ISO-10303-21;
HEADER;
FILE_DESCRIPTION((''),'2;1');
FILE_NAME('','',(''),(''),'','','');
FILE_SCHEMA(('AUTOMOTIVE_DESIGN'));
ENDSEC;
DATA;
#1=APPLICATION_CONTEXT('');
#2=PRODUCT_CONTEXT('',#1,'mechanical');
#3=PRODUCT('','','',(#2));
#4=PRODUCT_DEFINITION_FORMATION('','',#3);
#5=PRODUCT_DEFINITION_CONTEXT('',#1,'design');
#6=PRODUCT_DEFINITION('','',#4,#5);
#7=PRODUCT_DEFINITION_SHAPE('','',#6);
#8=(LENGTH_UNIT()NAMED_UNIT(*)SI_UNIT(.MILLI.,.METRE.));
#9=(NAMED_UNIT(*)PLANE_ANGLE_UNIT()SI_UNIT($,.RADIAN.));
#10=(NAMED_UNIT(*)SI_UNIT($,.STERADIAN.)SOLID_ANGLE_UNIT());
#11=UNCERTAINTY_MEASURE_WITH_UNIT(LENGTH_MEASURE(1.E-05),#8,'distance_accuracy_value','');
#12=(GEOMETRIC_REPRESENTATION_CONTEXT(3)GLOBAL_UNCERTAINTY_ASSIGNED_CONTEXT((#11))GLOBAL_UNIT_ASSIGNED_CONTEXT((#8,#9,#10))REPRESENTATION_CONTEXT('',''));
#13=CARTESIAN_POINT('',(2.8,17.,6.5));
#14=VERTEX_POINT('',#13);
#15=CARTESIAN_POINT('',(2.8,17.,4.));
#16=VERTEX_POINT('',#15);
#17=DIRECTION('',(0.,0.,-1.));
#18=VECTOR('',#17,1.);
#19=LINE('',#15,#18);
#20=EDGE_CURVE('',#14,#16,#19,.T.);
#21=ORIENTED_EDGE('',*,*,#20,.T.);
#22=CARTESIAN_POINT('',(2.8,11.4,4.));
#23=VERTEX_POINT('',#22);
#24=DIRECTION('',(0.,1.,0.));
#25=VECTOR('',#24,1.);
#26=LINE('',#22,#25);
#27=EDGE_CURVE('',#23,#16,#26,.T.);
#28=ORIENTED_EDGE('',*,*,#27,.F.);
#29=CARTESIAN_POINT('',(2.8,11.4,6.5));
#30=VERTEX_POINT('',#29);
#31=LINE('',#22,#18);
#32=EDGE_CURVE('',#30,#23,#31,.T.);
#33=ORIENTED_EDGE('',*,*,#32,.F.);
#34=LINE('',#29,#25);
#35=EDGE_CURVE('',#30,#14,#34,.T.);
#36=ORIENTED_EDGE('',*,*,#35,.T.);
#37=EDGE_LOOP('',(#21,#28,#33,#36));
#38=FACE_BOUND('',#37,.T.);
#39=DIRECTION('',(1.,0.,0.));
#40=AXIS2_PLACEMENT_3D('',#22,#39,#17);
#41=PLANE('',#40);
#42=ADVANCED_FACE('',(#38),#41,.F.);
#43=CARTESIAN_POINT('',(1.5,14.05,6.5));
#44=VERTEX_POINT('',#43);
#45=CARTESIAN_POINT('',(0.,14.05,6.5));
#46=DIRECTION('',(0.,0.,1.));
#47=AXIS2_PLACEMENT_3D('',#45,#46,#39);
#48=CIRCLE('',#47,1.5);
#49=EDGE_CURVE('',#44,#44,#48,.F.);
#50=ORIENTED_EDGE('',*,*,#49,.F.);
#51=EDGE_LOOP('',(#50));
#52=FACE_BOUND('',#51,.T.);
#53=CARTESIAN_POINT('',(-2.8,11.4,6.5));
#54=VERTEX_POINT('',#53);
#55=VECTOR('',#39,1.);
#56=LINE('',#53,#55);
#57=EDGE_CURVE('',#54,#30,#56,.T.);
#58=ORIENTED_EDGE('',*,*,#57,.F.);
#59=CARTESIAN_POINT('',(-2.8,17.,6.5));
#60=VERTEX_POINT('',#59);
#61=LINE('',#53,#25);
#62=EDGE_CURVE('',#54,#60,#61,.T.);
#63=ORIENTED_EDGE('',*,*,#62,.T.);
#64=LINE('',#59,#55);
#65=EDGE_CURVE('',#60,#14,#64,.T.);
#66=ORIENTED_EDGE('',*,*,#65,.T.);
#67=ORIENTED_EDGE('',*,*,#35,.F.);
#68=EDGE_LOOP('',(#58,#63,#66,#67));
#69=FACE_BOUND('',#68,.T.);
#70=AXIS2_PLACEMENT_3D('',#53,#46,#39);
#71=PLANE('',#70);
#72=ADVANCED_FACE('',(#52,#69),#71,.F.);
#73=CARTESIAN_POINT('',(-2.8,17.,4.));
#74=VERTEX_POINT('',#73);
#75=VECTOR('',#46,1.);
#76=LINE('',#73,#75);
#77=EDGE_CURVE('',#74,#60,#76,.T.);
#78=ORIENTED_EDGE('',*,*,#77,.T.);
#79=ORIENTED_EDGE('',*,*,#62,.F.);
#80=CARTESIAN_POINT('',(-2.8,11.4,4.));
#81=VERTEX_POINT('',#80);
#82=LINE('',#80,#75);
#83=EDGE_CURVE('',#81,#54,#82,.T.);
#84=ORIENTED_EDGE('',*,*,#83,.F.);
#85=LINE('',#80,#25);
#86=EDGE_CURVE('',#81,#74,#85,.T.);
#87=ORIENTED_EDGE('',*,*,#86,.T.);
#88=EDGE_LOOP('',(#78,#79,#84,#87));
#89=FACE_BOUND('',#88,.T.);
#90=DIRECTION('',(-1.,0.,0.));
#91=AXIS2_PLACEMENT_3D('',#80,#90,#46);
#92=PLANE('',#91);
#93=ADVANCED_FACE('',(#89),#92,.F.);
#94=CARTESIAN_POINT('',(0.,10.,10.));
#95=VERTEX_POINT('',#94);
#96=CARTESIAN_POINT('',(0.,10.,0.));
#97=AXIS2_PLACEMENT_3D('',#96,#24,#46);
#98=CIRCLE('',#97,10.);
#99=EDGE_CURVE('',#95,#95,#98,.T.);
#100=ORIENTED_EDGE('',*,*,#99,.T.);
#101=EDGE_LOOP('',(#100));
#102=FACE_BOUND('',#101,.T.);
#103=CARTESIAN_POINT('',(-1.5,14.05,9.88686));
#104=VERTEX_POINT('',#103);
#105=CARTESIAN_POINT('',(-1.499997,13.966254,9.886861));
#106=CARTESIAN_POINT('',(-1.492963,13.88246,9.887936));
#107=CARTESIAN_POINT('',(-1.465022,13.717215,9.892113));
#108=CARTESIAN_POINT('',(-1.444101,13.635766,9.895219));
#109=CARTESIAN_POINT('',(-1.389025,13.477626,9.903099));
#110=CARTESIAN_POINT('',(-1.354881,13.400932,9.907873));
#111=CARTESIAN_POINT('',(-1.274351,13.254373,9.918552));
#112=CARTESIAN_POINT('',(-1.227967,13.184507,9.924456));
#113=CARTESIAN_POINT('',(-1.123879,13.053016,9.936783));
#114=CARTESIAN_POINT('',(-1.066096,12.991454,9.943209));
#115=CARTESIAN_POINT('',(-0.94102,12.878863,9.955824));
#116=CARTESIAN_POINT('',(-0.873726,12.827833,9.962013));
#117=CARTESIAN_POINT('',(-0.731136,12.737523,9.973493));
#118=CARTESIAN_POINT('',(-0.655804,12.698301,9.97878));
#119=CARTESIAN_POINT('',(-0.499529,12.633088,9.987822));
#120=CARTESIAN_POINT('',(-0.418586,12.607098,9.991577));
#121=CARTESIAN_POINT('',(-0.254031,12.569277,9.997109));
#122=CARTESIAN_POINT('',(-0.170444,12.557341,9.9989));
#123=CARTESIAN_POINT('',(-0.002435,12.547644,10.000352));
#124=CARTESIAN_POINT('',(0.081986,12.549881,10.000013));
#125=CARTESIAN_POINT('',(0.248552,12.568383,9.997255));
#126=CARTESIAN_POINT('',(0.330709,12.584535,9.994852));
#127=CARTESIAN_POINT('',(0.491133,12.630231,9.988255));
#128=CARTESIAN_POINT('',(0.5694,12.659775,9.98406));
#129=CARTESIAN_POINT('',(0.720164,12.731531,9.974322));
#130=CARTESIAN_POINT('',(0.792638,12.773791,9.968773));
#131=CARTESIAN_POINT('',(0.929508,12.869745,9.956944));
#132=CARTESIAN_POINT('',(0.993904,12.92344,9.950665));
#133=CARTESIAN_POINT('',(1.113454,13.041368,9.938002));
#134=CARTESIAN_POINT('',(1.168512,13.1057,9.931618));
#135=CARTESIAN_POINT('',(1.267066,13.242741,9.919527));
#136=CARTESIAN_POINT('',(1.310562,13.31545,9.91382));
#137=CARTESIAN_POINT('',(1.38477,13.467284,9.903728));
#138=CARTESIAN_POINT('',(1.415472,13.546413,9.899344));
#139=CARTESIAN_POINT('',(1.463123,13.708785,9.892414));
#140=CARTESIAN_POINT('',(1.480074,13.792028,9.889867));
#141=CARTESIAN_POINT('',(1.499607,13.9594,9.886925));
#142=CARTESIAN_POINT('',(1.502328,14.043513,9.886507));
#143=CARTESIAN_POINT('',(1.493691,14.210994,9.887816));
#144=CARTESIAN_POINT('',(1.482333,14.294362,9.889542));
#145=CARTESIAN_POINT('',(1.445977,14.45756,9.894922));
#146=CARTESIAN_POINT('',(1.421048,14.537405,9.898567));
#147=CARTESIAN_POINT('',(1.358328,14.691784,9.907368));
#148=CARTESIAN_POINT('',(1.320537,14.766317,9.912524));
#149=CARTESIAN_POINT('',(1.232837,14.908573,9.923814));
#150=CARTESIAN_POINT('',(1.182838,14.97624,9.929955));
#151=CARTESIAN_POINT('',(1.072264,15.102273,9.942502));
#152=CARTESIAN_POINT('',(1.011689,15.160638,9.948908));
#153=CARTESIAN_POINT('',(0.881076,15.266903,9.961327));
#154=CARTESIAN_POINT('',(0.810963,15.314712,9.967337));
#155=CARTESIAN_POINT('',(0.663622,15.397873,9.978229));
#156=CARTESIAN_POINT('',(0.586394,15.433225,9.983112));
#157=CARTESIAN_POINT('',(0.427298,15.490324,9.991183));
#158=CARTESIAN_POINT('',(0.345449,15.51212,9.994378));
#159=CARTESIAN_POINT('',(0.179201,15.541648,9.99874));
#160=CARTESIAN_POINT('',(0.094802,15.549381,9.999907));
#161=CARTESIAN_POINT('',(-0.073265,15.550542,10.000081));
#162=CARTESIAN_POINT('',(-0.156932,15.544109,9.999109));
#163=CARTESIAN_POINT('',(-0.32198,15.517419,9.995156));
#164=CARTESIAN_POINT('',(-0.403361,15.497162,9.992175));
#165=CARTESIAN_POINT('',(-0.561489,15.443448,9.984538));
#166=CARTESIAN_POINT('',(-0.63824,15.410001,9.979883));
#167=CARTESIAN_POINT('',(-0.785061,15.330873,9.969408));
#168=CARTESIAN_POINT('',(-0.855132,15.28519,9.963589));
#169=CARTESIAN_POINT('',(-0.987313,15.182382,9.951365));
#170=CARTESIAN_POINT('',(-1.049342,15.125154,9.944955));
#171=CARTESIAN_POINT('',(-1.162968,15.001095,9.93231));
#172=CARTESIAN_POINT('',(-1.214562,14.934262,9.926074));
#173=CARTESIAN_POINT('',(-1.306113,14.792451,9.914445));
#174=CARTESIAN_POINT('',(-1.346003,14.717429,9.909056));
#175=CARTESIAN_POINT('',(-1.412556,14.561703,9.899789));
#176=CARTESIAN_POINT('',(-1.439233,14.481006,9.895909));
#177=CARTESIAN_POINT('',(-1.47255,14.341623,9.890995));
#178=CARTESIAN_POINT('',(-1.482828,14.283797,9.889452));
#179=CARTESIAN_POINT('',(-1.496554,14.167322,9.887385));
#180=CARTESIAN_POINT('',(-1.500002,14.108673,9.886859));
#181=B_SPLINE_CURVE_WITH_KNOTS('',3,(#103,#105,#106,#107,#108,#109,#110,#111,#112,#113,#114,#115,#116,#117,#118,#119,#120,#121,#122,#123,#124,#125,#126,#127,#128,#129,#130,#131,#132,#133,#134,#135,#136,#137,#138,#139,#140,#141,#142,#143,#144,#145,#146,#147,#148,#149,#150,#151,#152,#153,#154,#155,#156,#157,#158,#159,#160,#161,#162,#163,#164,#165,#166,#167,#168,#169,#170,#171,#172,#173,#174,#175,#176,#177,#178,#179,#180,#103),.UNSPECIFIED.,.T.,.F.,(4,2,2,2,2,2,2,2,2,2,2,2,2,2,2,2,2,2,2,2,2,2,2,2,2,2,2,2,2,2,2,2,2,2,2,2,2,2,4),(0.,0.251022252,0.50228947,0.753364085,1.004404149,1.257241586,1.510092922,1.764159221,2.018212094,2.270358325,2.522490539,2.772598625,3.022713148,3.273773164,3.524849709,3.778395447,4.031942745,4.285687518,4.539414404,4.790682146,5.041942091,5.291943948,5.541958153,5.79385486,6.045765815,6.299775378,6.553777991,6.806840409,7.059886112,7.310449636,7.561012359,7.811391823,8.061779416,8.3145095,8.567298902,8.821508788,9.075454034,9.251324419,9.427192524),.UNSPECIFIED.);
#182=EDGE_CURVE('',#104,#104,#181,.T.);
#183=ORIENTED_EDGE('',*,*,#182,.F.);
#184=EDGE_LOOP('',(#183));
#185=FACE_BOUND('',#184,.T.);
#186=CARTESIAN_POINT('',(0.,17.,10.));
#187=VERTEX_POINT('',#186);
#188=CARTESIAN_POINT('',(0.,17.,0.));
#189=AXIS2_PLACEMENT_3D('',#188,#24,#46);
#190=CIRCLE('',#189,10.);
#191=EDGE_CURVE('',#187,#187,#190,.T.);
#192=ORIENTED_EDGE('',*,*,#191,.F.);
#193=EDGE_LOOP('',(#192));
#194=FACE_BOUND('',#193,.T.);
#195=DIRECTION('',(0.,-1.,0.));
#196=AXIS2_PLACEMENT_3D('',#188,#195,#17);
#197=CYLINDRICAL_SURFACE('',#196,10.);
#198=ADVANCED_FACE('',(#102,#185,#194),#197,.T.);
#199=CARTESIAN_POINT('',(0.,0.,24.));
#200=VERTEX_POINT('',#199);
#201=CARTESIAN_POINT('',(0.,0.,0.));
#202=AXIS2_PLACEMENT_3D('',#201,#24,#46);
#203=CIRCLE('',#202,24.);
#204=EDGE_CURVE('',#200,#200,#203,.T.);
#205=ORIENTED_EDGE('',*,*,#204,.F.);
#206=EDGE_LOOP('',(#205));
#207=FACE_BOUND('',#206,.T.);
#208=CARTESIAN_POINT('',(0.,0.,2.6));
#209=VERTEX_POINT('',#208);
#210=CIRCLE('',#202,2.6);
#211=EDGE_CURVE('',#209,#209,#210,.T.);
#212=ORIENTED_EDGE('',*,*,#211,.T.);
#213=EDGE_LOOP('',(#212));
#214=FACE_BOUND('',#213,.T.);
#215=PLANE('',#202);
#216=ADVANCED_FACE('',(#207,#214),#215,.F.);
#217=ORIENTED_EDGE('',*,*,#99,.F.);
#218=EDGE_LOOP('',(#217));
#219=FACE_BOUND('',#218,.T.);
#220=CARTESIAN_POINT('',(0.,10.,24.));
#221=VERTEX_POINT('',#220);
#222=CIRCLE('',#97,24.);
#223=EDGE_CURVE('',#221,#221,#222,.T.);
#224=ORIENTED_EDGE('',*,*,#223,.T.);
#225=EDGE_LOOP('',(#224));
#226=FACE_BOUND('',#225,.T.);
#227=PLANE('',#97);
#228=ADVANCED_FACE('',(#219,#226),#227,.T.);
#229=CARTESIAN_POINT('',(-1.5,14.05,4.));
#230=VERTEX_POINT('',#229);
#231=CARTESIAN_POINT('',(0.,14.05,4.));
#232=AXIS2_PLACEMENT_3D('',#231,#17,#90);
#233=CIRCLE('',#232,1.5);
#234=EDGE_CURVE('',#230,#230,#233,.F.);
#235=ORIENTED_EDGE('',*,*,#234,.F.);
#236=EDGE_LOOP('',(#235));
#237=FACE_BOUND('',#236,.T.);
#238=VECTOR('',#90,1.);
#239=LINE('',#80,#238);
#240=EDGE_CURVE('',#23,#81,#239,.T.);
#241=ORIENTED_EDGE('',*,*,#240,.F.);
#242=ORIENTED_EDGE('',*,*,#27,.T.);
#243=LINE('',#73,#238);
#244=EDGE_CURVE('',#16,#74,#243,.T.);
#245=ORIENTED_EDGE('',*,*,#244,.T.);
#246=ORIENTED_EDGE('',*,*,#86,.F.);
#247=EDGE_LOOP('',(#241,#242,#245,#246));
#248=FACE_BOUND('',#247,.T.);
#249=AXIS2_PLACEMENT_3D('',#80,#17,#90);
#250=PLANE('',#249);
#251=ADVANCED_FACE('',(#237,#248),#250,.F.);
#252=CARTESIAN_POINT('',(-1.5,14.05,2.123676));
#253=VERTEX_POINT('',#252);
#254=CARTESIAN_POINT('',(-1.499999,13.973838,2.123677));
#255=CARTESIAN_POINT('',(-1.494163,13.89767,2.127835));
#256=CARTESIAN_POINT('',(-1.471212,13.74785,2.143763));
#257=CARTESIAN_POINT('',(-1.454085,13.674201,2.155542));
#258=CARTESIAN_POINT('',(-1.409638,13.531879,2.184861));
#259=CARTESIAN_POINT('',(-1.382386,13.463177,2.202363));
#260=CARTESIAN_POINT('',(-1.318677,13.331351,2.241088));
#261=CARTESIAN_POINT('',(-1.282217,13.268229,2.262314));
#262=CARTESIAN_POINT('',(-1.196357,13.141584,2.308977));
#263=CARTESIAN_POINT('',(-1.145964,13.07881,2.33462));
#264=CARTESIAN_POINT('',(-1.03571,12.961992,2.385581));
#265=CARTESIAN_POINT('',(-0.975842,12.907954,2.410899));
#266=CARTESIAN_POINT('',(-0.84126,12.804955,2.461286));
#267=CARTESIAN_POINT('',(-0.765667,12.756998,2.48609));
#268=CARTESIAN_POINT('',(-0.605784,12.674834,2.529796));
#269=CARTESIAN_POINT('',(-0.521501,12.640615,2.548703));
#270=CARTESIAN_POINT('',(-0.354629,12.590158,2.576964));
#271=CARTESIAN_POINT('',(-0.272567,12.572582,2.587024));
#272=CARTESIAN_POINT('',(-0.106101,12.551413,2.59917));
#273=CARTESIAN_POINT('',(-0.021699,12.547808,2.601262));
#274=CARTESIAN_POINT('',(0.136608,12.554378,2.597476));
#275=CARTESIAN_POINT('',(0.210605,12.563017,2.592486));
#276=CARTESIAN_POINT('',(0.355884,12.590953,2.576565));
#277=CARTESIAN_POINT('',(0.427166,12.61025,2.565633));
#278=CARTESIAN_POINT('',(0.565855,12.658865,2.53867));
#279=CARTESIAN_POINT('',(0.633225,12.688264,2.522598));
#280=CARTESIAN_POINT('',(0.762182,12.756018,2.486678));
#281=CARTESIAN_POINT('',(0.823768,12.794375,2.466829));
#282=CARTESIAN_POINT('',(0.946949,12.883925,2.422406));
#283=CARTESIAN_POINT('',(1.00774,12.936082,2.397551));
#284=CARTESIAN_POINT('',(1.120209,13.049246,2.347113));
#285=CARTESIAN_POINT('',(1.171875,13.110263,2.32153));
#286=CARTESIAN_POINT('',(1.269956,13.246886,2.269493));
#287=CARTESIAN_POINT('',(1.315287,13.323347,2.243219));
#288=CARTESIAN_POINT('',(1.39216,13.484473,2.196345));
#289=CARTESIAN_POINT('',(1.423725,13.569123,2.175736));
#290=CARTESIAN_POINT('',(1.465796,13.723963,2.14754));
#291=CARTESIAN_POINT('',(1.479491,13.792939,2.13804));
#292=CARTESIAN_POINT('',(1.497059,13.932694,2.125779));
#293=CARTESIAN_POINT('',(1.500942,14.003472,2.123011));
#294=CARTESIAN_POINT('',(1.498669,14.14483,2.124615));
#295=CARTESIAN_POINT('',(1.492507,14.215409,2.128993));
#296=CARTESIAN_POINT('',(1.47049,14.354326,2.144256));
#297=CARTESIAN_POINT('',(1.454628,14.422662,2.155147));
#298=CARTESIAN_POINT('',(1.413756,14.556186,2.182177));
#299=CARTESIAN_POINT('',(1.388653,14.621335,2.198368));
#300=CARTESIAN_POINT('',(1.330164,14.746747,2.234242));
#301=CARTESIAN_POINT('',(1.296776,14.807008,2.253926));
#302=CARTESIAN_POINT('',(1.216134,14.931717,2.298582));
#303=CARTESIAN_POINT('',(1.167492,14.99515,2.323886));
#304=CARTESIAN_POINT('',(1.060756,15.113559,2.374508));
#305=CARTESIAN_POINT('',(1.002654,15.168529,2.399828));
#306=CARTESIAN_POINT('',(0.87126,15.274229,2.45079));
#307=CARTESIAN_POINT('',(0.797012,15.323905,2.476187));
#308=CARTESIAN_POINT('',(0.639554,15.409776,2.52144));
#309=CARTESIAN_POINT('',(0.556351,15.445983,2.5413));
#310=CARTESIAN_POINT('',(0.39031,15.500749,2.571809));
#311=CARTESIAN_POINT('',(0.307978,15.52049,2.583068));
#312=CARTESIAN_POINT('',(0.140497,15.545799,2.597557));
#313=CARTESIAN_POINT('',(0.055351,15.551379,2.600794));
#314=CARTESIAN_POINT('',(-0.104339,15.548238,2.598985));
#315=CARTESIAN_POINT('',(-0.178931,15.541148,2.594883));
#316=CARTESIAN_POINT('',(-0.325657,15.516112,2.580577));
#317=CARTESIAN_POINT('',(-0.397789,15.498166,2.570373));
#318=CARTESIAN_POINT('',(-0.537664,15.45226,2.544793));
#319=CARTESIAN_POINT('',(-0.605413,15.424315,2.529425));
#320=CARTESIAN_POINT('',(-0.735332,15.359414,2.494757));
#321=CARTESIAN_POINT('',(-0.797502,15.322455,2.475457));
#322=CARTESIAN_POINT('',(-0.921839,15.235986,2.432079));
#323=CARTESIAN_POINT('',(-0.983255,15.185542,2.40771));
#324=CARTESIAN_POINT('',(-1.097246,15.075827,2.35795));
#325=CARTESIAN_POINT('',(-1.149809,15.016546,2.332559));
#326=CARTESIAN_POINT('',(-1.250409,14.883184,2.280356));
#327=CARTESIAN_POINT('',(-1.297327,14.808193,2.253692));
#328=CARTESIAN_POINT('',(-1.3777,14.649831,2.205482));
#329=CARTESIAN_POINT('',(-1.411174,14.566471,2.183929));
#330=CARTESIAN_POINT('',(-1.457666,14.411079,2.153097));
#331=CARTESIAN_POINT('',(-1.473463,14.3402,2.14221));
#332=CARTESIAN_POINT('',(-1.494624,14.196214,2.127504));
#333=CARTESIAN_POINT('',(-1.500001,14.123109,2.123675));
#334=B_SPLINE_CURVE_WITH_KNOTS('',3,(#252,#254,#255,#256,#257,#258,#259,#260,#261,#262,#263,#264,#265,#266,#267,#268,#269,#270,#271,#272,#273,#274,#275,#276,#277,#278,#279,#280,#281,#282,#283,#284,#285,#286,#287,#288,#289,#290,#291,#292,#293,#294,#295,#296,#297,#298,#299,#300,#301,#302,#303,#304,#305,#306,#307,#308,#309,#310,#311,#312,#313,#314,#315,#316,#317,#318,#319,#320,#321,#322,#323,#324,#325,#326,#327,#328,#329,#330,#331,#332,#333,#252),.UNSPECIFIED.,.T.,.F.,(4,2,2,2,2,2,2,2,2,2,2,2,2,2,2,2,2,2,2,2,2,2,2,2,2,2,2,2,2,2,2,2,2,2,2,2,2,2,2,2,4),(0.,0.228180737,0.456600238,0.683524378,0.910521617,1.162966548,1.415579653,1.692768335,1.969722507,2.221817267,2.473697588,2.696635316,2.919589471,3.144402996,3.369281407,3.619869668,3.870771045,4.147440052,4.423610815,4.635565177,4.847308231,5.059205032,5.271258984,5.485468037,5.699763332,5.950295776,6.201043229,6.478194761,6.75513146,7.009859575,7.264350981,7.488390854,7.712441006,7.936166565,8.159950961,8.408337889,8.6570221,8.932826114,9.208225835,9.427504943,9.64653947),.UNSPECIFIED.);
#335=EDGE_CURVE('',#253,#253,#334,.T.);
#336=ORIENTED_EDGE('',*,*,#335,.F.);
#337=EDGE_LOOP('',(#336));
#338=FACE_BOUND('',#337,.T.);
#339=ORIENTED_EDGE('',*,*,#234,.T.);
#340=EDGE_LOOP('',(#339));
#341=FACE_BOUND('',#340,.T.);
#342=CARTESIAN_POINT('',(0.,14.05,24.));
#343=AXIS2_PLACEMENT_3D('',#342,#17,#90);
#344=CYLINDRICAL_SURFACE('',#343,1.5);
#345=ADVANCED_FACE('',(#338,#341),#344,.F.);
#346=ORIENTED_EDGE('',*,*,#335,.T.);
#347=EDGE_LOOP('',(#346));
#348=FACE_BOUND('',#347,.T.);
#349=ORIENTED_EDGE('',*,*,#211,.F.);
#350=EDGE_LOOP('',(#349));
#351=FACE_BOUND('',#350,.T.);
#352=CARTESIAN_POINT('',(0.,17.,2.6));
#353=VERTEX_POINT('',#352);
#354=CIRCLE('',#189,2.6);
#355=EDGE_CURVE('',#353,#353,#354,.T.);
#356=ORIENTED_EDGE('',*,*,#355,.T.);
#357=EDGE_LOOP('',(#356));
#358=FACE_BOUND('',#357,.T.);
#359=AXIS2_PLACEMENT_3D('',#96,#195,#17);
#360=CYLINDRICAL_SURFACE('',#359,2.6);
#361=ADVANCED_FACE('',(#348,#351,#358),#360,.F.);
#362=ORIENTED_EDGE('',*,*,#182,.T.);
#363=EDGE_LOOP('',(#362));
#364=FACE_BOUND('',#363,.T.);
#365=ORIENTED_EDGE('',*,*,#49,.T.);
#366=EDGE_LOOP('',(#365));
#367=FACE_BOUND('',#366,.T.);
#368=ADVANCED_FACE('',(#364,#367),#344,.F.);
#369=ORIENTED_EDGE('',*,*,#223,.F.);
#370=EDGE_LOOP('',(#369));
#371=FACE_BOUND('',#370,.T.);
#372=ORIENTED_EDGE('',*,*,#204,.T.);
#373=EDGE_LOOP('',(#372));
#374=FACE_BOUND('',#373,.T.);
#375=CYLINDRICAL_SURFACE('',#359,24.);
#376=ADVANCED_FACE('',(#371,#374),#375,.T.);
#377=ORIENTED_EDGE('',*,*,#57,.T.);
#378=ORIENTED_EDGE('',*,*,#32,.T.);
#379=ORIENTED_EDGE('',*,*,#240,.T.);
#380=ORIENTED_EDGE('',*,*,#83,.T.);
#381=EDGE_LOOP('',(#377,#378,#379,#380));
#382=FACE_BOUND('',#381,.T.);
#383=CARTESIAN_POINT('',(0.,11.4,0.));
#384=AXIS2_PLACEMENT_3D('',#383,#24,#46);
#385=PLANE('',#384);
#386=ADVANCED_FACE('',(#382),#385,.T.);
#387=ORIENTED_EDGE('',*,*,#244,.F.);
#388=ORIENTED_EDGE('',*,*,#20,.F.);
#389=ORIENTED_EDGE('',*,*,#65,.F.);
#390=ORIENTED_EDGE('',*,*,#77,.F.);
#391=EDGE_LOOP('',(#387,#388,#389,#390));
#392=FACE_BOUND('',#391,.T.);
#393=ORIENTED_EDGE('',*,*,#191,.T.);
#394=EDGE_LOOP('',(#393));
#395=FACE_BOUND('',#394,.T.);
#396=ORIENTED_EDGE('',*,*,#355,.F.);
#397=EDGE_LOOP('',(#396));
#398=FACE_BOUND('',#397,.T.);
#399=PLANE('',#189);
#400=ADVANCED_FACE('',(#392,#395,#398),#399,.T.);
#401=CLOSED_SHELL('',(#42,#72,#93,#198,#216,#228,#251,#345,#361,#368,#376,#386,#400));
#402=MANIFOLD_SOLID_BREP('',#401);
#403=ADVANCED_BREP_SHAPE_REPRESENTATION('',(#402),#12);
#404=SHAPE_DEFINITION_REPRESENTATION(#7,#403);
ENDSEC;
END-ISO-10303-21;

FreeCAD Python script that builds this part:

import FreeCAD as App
import Part
import Sketcher
Q = App.Units.Quantity

doc = App.newDocument("Part")
body = doc.addObject("PartDesign::Body", "Body")

sketch1 = body.newObject("Sketcher::SketchObject", "Sketch")
sketch1.AttachmentSupport = (doc.getObject("XZ_Plane"), [""])
sketch1.MapMode = "FlatFace"
sketch1.addGeometry(Part.Circle(App.Vector(0, 0, 0), App.Vector(0, 0, 1), 24), False)
sketch1.addGeometry(Part.Circle(App.Vector(0, 0, 0), App.Vector(0, 0, 1), 2.6), False)
sketch1.addConstraint(Sketcher.Constraint("Coincident", 0, 3, -1, 1))
sketch1.addConstraint(Sketcher.Constraint("Coincident", 1, 3, -1, 1))
sketch1.addConstraint(Sketcher.Constraint("Diameter", 0, Q("48 mm")))
sketch1.addConstraint(Sketcher.Constraint("Diameter", 1, Q("5.2 mm")))
pad1 = body.newObject("PartDesign::Pad", "Pad")
pad1.Profile = sketch1
pad1.Length = 10
pad1.Reversed = True

sketch2 = body.newObject("Sketcher::SketchObject", "Sketch001")
sketch2.AttachmentSupport = (doc.getObject("XZ_Plane"), [""])
sketch2.MapMode = "FlatFace"
sketch2.AttachmentOffset = App.Placement(App.Vector(0, 0, -10), App.Rotation())
sketch2.addGeometry(Part.Circle(App.Vector(0, 0, 0), App.Vector(0, 0, 1), 10), False)
sketch2.addGeometry(Part.Circle(App.Vector(0, 0, 0), App.Vector(0, 0, 1), 2.6), False)
sketch2.addConstraint(Sketcher.Constraint("Coincident", 0, 3, -1, 1))
sketch2.addConstraint(Sketcher.Constraint("Coincident", 1, 3, -1, 1))
sketch2.addConstraint(Sketcher.Constraint("Diameter", 0, Q("20 mm")))
sketch2.addConstraint(Sketcher.Constraint("Diameter", 1, Q("5.2 mm")))
pad2 = body.newObject("PartDesign::Pad", "Pad001")
pad2.Profile = sketch2
pad2.Length = 7
pad2.Reversed = True

sketch3 = body.newObject("Sketcher::SketchObject", "Sketch002")
sketch3.AttachmentSupport = (doc.getObject("XZ_Plane"), [""])
sketch3.MapMode = "FlatFace"
sketch3.AttachmentOffset = App.Placement(App.Vector(0, 0, -17), App.Rotation())
sketch3.addGeometry(Part.LineSegment(App.Vector(-2.8, 4, 0), App.Vector(-2.8, 6.5, 0)), False)
sketch3.addGeometry(Part.LineSegment(App.Vector(-2.8, 6.5, 0), App.Vector(2.8, 6.5, 0)), False)
sketch3.addGeometry(Part.LineSegment(App.Vector(2.8, 6.5, 0), App.Vector(2.8, 4, 0)), False)
sketch3.addGeometry(Part.LineSegment(App.Vector(2.8, 4, 0), App.Vector(-2.8, 4, 0)), False)
sketch3.addConstraint(Sketcher.Constraint("Coincident", 0, 2, 1, 1))
sketch3.addConstraint(Sketcher.Constraint("Coincident", 1, 2, 2, 1))
sketch3.addConstraint(Sketcher.Constraint("Coincident", 2, 2, 3, 1))
sketch3.addConstraint(Sketcher.Constraint("Coincident", 3, 2, 0, 1))
sketch3.addConstraint(Sketcher.Constraint("Vertical", 0))
sketch3.addConstraint(Sketcher.Constraint("Horizontal", 1))
sketch3.addConstraint(Sketcher.Constraint("Vertical", 2))
sketch3.addConstraint(Sketcher.Constraint("Horizontal", 3))
sketch3.addConstraint(Sketcher.Constraint("DistanceX", 1, 1, 1, 2, Q("5.6 mm")))
sketch3.addConstraint(Sketcher.Constraint("DistanceY", 0, 1, 0, 2, Q("2.5 mm")))
sketch3.addConstraint(Sketcher.Constraint("DistanceY", -1, 1, 2, 2, Q("4 mm")))
sketch3.addConstraint(Sketcher.Constraint("DistanceX", 0, 2, -1, 1, Q("2.8 mm")))
pocket1 = body.newObject("PartDesign::Pocket", "Pocket")
pocket1.Profile = sketch3
pocket1.Length = 5.6
pocket1.Reversed = True

sketch4 = body.newObject("Sketcher::SketchObject", "Sketch003")
sketch4.AttachmentSupport = (doc.getObject("XY_Plane"), [""])
sketch4.MapMode = "FlatFace"
sketch4.addGeometry(Part.Circle(App.Vector(0, 14.1, 0), App.Vector(0, 0, 1), 1.5), False)
sketch4.addConstraint(Sketcher.Constraint("PointOnObject", 0, 3, -2))
sketch4.addConstraint(Sketcher.Constraint("Diameter", 0, Q("3 mm")))
sketch4.addConstraint(Sketcher.Constraint("DistanceY", -1, 1, 0, 3, Q("14.05 mm")))
pocket2 = body.newObject("PartDesign::Pocket", "Pocket001")
pocket2.Profile = sketch4
pocket2.Type = "ThroughAll"
pocket2.Reversed = True

doc.recompute()
